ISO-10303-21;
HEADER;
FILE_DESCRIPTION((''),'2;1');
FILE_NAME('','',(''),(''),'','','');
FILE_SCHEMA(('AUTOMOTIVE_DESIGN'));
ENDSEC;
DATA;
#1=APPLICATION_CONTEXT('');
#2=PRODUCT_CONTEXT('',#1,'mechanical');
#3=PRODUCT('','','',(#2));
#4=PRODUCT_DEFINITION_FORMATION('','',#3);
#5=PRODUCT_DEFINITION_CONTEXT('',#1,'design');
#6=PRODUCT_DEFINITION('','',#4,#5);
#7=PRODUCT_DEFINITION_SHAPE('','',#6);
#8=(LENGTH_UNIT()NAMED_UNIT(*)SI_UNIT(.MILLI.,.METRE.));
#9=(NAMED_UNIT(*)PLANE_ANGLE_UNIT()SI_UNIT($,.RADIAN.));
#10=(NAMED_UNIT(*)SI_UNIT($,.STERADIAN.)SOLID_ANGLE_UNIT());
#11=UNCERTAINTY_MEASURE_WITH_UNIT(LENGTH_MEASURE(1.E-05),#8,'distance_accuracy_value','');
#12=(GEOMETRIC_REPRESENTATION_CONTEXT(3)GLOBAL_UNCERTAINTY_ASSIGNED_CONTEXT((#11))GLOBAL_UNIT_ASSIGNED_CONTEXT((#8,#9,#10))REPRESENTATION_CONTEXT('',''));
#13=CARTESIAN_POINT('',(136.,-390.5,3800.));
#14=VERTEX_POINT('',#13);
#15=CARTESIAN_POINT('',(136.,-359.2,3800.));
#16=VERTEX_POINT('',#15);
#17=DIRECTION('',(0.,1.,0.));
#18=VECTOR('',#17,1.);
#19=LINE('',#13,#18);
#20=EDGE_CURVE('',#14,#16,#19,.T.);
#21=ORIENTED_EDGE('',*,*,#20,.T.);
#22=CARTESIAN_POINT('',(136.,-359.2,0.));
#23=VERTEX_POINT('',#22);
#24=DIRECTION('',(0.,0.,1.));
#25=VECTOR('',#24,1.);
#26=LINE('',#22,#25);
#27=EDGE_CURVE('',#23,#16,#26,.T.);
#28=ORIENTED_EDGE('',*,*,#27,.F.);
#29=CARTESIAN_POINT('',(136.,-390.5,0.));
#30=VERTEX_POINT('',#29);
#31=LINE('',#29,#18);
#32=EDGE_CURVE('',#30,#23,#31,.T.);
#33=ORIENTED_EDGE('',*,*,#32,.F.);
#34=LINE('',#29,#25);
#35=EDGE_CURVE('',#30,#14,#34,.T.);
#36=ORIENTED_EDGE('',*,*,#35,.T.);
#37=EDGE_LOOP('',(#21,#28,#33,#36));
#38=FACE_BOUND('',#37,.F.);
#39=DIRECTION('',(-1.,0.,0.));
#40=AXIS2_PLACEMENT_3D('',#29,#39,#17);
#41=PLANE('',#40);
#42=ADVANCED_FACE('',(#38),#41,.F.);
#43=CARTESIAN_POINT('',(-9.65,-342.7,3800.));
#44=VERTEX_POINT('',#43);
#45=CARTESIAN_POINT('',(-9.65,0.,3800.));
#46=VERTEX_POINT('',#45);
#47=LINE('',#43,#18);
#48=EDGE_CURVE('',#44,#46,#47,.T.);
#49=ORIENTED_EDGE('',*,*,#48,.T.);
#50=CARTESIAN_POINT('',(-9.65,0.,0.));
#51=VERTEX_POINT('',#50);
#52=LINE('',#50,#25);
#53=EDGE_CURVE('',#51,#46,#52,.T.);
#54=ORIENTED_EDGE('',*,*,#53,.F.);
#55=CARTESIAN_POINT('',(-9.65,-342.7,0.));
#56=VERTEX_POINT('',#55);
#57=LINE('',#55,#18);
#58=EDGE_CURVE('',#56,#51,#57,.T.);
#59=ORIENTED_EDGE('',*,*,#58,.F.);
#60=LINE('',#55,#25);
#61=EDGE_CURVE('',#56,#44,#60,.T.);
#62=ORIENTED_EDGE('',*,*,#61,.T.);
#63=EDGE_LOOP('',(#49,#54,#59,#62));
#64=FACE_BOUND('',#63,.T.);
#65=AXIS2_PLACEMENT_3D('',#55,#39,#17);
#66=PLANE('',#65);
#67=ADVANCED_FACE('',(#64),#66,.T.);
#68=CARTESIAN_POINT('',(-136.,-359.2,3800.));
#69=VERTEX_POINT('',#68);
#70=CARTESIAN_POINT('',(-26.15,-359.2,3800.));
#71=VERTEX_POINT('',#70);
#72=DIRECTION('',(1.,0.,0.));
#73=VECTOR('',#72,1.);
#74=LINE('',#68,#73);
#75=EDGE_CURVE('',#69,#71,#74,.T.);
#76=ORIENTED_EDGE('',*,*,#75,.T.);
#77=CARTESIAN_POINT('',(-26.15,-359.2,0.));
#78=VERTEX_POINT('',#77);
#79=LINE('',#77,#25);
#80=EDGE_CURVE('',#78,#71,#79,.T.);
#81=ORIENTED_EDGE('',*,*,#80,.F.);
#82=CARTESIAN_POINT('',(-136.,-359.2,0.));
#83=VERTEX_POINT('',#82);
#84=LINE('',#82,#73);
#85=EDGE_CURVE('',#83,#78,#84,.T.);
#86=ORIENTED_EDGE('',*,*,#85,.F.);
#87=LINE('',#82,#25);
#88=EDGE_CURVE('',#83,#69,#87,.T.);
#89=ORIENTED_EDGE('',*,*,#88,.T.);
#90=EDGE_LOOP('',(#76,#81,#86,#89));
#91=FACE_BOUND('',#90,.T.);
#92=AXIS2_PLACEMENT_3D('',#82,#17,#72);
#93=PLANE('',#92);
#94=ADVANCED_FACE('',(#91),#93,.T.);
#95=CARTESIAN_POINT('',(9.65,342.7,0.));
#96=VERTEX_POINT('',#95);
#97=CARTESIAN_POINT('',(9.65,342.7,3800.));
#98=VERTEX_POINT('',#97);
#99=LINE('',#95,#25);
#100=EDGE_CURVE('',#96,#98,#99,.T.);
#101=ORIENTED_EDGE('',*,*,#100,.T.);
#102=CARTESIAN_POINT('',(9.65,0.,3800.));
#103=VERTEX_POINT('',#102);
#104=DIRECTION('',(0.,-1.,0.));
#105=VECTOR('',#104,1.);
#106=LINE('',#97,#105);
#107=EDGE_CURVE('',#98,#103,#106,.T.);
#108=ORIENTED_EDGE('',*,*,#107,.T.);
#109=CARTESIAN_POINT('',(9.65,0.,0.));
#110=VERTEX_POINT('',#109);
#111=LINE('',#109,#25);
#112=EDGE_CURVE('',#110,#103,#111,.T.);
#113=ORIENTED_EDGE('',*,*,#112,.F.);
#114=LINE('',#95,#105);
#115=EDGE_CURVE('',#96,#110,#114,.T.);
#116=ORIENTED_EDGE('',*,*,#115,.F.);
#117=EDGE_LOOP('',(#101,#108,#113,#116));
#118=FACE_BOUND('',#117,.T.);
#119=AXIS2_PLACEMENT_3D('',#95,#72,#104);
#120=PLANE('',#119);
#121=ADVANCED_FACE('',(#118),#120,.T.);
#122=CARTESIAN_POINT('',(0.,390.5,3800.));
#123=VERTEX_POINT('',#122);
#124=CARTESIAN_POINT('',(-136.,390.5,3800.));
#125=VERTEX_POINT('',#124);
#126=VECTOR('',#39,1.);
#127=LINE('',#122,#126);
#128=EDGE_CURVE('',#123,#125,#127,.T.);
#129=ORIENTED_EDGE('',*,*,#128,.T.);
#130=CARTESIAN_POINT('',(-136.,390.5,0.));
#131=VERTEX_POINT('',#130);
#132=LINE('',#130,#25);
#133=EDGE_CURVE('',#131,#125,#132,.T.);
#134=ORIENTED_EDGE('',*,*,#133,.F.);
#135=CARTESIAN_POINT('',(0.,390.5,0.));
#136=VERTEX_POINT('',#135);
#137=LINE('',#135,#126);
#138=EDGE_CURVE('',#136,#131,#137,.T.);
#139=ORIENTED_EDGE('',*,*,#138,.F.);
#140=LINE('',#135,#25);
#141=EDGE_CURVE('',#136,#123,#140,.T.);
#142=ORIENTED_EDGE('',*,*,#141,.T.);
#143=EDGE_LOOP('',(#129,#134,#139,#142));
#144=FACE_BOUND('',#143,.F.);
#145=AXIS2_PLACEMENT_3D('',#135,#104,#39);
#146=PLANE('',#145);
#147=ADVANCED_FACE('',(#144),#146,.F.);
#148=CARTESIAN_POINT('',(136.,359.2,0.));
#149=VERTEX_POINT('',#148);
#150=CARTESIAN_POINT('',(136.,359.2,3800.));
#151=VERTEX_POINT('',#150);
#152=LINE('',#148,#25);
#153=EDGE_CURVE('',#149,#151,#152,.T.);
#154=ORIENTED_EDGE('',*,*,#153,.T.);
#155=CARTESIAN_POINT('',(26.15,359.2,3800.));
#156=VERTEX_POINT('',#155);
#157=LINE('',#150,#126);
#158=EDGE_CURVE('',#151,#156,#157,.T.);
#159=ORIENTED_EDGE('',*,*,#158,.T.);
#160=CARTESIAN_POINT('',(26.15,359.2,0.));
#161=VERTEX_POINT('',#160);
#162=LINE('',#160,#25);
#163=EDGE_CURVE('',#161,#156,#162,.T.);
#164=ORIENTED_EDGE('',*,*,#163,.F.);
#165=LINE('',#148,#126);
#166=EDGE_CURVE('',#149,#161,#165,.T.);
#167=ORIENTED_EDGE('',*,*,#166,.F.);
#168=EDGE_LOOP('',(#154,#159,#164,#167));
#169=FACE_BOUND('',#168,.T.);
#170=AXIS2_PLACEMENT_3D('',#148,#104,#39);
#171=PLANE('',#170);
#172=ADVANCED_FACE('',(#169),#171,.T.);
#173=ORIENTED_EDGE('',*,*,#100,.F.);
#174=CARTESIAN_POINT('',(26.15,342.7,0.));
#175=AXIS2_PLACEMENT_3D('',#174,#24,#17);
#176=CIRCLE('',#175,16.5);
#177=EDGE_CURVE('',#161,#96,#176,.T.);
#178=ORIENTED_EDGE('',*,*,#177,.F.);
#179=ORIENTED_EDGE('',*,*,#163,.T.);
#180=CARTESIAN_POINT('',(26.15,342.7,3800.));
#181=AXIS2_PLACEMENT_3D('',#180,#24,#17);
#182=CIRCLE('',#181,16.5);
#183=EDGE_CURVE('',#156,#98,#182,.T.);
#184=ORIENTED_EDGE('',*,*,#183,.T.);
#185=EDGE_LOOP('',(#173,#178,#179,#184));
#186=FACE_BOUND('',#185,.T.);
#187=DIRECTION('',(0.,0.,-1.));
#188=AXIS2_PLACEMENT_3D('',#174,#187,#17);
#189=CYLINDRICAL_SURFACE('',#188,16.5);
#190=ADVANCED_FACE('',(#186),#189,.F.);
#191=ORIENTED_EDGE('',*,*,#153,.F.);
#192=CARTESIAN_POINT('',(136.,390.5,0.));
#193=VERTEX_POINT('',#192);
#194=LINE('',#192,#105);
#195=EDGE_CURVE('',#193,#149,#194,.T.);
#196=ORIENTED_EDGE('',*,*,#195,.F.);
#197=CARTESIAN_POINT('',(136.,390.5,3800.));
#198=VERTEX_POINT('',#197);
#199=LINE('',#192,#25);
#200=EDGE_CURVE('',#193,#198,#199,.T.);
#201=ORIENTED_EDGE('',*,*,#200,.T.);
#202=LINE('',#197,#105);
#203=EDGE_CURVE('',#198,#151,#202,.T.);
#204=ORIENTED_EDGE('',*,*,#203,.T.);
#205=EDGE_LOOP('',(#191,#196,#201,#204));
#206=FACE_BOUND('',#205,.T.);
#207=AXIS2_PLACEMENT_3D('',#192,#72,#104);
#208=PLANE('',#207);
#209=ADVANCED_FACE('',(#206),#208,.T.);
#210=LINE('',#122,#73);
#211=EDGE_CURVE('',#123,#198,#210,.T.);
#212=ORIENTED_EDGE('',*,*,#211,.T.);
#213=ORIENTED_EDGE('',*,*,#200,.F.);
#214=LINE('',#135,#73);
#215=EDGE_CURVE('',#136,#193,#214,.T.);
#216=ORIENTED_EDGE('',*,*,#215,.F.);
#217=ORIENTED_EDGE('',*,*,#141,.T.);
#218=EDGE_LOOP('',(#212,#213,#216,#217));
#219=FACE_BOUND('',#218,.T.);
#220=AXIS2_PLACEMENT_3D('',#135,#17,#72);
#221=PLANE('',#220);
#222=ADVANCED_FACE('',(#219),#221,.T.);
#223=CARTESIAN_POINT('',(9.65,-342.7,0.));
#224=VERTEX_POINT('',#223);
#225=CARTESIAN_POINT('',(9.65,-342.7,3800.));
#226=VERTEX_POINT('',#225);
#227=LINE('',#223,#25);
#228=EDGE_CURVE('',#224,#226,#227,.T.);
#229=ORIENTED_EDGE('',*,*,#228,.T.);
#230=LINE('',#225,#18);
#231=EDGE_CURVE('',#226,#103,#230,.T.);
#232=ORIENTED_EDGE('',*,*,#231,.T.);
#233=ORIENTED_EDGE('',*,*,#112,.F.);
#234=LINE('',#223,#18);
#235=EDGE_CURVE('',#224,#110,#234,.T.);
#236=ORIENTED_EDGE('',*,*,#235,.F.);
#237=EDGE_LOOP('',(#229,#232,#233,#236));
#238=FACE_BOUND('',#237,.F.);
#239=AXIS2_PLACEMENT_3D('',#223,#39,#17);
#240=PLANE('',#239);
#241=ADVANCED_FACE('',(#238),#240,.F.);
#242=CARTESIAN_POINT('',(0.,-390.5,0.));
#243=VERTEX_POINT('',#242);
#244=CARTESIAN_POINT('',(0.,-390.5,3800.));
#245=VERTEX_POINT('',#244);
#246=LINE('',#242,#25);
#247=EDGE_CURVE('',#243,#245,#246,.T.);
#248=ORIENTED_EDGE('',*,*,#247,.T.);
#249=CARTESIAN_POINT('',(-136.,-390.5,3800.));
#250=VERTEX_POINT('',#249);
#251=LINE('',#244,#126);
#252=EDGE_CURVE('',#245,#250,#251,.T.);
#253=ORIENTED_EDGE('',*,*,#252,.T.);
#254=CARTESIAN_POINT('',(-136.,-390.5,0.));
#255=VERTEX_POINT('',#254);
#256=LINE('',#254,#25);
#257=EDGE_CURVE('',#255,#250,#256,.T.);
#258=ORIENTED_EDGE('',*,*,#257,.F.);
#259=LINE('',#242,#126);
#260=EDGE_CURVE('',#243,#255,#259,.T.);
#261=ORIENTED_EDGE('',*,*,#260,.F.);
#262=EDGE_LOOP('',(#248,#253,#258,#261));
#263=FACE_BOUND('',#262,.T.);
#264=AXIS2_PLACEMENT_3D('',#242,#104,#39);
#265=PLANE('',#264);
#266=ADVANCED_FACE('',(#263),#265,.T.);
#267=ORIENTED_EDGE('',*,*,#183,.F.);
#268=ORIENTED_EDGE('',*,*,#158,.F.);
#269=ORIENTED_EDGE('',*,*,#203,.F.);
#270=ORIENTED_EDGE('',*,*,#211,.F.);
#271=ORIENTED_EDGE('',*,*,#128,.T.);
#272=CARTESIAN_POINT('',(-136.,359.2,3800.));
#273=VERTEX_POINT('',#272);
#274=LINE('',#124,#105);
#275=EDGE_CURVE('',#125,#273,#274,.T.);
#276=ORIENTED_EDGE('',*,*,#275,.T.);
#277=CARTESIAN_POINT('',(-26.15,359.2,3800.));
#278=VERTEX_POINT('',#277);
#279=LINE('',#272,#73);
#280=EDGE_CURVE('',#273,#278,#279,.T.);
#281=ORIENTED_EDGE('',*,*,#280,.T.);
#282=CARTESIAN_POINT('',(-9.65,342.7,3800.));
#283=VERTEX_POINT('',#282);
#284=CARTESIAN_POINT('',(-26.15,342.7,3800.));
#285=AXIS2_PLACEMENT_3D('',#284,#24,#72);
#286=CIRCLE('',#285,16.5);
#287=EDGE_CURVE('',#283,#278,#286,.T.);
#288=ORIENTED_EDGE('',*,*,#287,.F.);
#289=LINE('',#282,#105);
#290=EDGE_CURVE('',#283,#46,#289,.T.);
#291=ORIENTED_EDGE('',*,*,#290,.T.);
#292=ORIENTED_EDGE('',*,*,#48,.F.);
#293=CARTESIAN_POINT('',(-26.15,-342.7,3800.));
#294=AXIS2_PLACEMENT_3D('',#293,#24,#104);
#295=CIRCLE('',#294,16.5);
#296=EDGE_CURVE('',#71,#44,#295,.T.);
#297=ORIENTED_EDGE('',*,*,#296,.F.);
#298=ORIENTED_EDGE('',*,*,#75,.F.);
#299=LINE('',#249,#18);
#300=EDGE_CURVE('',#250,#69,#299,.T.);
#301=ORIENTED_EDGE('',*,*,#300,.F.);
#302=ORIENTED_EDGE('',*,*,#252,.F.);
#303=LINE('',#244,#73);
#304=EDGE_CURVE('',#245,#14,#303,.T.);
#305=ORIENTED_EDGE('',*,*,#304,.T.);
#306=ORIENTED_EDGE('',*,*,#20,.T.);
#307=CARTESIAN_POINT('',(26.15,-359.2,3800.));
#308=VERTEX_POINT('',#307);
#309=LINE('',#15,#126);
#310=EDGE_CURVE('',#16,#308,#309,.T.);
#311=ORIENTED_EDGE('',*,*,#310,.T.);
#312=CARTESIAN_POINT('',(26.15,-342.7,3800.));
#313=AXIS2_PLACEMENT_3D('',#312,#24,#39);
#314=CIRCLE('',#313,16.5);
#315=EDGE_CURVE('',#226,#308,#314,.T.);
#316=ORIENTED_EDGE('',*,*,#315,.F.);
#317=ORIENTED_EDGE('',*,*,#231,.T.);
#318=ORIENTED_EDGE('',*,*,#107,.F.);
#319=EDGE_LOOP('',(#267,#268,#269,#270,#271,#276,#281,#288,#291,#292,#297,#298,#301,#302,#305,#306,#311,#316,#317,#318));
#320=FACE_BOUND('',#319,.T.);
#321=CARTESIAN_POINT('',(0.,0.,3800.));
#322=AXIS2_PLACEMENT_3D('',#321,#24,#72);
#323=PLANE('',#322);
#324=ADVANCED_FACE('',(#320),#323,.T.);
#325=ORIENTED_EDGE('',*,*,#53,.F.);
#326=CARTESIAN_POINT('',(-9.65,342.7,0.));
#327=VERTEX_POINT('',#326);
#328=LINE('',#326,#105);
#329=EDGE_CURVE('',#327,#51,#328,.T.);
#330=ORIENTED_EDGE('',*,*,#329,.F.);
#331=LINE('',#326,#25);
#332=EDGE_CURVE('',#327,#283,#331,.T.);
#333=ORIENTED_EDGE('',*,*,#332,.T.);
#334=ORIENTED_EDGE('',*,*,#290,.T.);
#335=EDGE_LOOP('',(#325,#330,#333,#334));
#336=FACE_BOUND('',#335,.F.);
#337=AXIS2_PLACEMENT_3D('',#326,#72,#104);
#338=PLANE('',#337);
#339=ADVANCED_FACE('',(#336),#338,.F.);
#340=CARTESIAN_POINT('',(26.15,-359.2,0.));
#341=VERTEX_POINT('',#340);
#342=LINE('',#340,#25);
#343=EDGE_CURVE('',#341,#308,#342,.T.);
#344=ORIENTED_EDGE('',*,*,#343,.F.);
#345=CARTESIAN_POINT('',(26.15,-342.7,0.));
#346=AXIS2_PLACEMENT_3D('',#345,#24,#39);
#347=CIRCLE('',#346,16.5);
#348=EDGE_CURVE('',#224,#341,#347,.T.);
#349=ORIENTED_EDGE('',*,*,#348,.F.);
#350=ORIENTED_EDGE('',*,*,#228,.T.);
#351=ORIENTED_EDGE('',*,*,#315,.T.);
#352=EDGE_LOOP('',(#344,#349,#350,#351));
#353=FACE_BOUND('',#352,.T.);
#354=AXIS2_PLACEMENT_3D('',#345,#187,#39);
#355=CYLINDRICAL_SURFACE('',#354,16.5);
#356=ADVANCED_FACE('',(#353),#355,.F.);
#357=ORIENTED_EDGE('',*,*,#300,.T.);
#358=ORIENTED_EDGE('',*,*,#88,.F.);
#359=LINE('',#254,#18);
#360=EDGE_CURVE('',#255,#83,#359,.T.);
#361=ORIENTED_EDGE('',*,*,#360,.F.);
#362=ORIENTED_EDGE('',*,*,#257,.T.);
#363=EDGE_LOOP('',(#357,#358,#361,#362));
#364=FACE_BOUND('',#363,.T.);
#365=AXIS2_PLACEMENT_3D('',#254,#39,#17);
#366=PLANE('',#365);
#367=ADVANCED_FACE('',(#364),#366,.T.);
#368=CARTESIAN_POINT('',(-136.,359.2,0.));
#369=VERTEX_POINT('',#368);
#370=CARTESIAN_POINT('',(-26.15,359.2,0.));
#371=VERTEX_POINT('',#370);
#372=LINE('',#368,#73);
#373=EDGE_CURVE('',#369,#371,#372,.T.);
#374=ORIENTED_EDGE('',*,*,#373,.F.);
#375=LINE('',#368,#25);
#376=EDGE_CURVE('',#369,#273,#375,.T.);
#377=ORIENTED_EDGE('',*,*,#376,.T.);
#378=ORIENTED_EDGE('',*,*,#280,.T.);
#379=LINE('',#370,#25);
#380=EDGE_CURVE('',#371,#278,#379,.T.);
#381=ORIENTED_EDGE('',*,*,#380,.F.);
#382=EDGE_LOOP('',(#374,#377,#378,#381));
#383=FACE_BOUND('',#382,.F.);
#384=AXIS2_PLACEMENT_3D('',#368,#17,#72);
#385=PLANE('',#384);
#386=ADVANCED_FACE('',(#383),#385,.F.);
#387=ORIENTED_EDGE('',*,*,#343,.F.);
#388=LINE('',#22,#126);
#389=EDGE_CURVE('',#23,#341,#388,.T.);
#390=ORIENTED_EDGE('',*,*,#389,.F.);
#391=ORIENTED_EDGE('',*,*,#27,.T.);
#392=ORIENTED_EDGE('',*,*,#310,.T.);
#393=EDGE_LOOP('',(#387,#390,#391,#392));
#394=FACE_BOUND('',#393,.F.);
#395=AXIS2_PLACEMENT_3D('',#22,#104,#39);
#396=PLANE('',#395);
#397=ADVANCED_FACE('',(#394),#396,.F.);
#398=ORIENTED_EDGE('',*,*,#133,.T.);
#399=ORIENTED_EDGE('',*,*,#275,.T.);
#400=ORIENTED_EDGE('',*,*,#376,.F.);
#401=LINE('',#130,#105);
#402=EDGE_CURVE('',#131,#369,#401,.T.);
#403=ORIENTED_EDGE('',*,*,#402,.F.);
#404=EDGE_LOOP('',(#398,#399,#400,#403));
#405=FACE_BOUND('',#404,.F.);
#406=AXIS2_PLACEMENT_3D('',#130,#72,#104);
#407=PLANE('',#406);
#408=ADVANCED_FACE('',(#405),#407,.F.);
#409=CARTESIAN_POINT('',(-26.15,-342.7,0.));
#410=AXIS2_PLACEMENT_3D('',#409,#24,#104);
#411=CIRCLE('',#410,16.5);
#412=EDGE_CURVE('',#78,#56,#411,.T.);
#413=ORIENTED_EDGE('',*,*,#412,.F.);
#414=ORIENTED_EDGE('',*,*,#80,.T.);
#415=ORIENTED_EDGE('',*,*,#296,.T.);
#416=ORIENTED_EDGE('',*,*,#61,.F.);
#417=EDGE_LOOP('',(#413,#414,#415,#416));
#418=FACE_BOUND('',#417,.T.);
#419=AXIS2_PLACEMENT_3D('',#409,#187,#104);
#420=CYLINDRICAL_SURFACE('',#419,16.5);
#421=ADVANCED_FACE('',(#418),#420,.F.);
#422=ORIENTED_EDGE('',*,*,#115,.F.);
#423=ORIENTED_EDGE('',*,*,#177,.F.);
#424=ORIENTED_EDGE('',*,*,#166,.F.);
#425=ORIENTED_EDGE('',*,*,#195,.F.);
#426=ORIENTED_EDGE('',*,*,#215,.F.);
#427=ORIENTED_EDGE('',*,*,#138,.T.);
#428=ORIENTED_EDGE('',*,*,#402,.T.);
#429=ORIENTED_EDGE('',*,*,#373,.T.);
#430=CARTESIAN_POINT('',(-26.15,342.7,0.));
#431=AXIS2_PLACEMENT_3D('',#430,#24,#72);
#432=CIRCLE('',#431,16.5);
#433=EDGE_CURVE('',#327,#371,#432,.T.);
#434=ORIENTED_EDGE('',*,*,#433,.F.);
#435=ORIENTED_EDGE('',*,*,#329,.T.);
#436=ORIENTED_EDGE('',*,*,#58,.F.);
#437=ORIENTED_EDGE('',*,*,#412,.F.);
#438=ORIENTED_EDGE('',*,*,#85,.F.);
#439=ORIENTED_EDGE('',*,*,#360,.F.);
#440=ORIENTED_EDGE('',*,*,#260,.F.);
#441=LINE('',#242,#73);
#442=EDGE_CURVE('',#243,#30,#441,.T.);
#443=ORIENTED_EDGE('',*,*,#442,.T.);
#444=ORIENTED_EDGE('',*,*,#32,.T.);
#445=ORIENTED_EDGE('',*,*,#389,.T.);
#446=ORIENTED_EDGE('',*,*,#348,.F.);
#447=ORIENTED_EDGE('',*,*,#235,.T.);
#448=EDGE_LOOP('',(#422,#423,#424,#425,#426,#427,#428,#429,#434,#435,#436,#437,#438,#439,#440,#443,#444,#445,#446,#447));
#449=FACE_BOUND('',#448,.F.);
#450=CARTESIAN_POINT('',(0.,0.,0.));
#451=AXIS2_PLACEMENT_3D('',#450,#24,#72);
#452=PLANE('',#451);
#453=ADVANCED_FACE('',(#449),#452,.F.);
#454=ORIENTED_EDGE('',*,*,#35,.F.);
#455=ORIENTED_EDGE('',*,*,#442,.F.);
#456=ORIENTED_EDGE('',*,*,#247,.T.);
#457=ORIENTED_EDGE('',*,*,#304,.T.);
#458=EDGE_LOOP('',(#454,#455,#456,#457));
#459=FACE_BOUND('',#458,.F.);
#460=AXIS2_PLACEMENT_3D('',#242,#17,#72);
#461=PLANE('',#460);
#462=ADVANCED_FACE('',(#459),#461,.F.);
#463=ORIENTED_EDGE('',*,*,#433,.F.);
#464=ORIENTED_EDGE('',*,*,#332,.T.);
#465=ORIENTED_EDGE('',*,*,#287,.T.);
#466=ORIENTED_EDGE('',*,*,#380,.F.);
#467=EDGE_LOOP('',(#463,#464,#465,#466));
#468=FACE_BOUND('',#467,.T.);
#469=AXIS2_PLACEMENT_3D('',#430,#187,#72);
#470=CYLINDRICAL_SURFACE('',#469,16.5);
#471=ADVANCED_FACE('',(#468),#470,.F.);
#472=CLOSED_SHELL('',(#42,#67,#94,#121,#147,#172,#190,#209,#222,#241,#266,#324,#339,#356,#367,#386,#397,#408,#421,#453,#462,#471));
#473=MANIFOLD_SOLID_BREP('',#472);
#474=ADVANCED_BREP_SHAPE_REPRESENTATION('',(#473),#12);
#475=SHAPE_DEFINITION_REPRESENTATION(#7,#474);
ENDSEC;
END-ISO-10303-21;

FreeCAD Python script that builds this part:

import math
import FreeCAD as App
import Part
import Sketcher
from FreeCAD import Vector

doc = App.newDocument("Part")
body = doc.addObject("PartDesign::Body", "Body")

# Sketch on XY plane
sketch1 = doc.addObject("Sketcher::SketchObject", "Sketch")
body.addObject(sketch1)
sketch1.AttachmentSupport = (doc.XY_Plane, [""])
sketch1.MapMode = "FlatFace"
sketch1.addGeometry([
    Part.LineSegment(Vector(-136, -359, 0), Vector(-136, -390, 0)),  # 0
    Part.LineSegment(Vector(-136, -390, 0), Vector(136, -390, 0)),  # 1
    Part.LineSegment(Vector(136, -390, 0), Vector(136, -359, 0)),  # 2
    Part.LineSegment(Vector(136, -359, 0), Vector(26, -359, 0)),  # 3
    Part.ArcOfCircle(Part.Circle(Vector(26, -343, 0), Vector(0, 0, 1), 16), math.radians(180), math.radians(270)),  # 4
    Part.LineSegment(Vector(10, -343, 0), Vector(10, 343, 0)),  # 5
    Part.ArcOfCircle(Part.Circle(Vector(26, 343, 0), Vector(0, 0, 1), 16), math.radians(90), math.radians(180)),  # 6
    Part.LineSegment(Vector(26, 359, 0), Vector(136, 359, 0)),  # 7
    Part.LineSegment(Vector(136, 359, 0), Vector(136, 390, 0)),  # 8
    Part.LineSegment(Vector(136, 390, 0), Vector(-136, 390, 0)),  # 9
    Part.LineSegment(Vector(-136, 390, 0), Vector(-136, 359, 0)),  # 10
    Part.LineSegment(Vector(-136, 359, 0), Vector(-26, 359, 0)),  # 11
    Part.ArcOfCircle(Part.Circle(Vector(-26, 343, 0), Vector(0, 0, 1), 16), math.radians(0), math.radians(90)),  # 12
    Part.LineSegment(Vector(-10, 343, 0), Vector(-10, -343, 0)),  # 13
    Part.ArcOfCircle(Part.Circle(Vector(-26, -343, 0), Vector(0, 0, 1), 16), math.radians(-90), math.radians(0)),  # 14
    Part.LineSegment(Vector(-26, -359, 0), Vector(-136, -359, 0)),  # 15
], False)
sketch1.addConstraint([
    Sketcher.Constraint("Coincident", 0, 2, 1, 1),
    Sketcher.Constraint("Coincident", 1, 2, 2, 1),
    Sketcher.Constraint("Coincident", 2, 2, 3, 1),
    Sketcher.Constraint("Tangent", 3, 2, 4, 2),
    Sketcher.Constraint("Tangent", 4, 1, 5, 1),
    Sketcher.Constraint("Tangent", 5, 2, 6, 2),
    Sketcher.Constraint("Tangent", 6, 1, 7, 1),
    Sketcher.Constraint("Coincident", 7, 2, 8, 1),
    Sketcher.Constraint("Coincident", 8, 2, 9, 1),
    Sketcher.Constraint("Coincident", 9, 2, 10, 1),
    Sketcher.Constraint("Coincident", 10, 2, 11, 1),
    Sketcher.Constraint("Tangent", 11, 2, 12, 2),
    Sketcher.Constraint("Tangent", 12, 1, 13, 1),
    Sketcher.Constraint("Tangent", 13, 2, 14, 2),
    Sketcher.Constraint("Tangent", 14, 1, 15, 1),
    Sketcher.Constraint("Coincident", 15, 2, 0, 1),
    Sketcher.Constraint("Vertical", 0),
    Sketcher.Constraint("Horizontal", 1),
    Sketcher.Constraint("Vertical", 2),
    Sketcher.Constraint("Horizontal", 3),
    Sketcher.Constraint("Vertical", 5),
    Sketcher.Constraint("Horizontal", 7),
    Sketcher.Constraint("Vertical", 8),
    Sketcher.Constraint("Horizontal", 9),
    Sketcher.Constraint("Vertical", 10),
    Sketcher.Constraint("Horizontal", 11),
    Sketcher.Constraint("Vertical", 13),
    Sketcher.Constraint("Horizontal", 15),
    Sketcher.Constraint("Equal", 4, 6),
    Sketcher.Constraint("Equal", 6, 12),
    Sketcher.Constraint("Equal", 12, 14),
    Sketcher.Constraint("Symmetric", 4, 3, 12, 3, -1, 1),
    Sketcher.Constraint("Symmetric", 0, 2, 8, 2, -1, 1),
    Sketcher.Constraint("Symmetric", 7, 2, 10, 2, -2),
    Sketcher.Constraint("Symmetric", 2, 2, 15, 2, -2),
    Sketcher.Constraint("Radius", 4, 16.5),
    Sketcher.Constraint("DistanceY", 0, 2, 0, 1, 31.3),
    Sketcher.Constraint("DistanceX", 0, 2, -1, 1, 136.0),
    Sketcher.Constraint("DistanceY", 0, 2, -1, 1, 390.5),
    Sketcher.Constraint("DistanceX", -1, 1, 4, 1, 9.65),
])
pad1 = doc.addObject("PartDesign::Pad", "Pad")
body.addObject(pad1)
pad1.Profile = sketch1
pad1.Length = 3800

doc.recompute()
